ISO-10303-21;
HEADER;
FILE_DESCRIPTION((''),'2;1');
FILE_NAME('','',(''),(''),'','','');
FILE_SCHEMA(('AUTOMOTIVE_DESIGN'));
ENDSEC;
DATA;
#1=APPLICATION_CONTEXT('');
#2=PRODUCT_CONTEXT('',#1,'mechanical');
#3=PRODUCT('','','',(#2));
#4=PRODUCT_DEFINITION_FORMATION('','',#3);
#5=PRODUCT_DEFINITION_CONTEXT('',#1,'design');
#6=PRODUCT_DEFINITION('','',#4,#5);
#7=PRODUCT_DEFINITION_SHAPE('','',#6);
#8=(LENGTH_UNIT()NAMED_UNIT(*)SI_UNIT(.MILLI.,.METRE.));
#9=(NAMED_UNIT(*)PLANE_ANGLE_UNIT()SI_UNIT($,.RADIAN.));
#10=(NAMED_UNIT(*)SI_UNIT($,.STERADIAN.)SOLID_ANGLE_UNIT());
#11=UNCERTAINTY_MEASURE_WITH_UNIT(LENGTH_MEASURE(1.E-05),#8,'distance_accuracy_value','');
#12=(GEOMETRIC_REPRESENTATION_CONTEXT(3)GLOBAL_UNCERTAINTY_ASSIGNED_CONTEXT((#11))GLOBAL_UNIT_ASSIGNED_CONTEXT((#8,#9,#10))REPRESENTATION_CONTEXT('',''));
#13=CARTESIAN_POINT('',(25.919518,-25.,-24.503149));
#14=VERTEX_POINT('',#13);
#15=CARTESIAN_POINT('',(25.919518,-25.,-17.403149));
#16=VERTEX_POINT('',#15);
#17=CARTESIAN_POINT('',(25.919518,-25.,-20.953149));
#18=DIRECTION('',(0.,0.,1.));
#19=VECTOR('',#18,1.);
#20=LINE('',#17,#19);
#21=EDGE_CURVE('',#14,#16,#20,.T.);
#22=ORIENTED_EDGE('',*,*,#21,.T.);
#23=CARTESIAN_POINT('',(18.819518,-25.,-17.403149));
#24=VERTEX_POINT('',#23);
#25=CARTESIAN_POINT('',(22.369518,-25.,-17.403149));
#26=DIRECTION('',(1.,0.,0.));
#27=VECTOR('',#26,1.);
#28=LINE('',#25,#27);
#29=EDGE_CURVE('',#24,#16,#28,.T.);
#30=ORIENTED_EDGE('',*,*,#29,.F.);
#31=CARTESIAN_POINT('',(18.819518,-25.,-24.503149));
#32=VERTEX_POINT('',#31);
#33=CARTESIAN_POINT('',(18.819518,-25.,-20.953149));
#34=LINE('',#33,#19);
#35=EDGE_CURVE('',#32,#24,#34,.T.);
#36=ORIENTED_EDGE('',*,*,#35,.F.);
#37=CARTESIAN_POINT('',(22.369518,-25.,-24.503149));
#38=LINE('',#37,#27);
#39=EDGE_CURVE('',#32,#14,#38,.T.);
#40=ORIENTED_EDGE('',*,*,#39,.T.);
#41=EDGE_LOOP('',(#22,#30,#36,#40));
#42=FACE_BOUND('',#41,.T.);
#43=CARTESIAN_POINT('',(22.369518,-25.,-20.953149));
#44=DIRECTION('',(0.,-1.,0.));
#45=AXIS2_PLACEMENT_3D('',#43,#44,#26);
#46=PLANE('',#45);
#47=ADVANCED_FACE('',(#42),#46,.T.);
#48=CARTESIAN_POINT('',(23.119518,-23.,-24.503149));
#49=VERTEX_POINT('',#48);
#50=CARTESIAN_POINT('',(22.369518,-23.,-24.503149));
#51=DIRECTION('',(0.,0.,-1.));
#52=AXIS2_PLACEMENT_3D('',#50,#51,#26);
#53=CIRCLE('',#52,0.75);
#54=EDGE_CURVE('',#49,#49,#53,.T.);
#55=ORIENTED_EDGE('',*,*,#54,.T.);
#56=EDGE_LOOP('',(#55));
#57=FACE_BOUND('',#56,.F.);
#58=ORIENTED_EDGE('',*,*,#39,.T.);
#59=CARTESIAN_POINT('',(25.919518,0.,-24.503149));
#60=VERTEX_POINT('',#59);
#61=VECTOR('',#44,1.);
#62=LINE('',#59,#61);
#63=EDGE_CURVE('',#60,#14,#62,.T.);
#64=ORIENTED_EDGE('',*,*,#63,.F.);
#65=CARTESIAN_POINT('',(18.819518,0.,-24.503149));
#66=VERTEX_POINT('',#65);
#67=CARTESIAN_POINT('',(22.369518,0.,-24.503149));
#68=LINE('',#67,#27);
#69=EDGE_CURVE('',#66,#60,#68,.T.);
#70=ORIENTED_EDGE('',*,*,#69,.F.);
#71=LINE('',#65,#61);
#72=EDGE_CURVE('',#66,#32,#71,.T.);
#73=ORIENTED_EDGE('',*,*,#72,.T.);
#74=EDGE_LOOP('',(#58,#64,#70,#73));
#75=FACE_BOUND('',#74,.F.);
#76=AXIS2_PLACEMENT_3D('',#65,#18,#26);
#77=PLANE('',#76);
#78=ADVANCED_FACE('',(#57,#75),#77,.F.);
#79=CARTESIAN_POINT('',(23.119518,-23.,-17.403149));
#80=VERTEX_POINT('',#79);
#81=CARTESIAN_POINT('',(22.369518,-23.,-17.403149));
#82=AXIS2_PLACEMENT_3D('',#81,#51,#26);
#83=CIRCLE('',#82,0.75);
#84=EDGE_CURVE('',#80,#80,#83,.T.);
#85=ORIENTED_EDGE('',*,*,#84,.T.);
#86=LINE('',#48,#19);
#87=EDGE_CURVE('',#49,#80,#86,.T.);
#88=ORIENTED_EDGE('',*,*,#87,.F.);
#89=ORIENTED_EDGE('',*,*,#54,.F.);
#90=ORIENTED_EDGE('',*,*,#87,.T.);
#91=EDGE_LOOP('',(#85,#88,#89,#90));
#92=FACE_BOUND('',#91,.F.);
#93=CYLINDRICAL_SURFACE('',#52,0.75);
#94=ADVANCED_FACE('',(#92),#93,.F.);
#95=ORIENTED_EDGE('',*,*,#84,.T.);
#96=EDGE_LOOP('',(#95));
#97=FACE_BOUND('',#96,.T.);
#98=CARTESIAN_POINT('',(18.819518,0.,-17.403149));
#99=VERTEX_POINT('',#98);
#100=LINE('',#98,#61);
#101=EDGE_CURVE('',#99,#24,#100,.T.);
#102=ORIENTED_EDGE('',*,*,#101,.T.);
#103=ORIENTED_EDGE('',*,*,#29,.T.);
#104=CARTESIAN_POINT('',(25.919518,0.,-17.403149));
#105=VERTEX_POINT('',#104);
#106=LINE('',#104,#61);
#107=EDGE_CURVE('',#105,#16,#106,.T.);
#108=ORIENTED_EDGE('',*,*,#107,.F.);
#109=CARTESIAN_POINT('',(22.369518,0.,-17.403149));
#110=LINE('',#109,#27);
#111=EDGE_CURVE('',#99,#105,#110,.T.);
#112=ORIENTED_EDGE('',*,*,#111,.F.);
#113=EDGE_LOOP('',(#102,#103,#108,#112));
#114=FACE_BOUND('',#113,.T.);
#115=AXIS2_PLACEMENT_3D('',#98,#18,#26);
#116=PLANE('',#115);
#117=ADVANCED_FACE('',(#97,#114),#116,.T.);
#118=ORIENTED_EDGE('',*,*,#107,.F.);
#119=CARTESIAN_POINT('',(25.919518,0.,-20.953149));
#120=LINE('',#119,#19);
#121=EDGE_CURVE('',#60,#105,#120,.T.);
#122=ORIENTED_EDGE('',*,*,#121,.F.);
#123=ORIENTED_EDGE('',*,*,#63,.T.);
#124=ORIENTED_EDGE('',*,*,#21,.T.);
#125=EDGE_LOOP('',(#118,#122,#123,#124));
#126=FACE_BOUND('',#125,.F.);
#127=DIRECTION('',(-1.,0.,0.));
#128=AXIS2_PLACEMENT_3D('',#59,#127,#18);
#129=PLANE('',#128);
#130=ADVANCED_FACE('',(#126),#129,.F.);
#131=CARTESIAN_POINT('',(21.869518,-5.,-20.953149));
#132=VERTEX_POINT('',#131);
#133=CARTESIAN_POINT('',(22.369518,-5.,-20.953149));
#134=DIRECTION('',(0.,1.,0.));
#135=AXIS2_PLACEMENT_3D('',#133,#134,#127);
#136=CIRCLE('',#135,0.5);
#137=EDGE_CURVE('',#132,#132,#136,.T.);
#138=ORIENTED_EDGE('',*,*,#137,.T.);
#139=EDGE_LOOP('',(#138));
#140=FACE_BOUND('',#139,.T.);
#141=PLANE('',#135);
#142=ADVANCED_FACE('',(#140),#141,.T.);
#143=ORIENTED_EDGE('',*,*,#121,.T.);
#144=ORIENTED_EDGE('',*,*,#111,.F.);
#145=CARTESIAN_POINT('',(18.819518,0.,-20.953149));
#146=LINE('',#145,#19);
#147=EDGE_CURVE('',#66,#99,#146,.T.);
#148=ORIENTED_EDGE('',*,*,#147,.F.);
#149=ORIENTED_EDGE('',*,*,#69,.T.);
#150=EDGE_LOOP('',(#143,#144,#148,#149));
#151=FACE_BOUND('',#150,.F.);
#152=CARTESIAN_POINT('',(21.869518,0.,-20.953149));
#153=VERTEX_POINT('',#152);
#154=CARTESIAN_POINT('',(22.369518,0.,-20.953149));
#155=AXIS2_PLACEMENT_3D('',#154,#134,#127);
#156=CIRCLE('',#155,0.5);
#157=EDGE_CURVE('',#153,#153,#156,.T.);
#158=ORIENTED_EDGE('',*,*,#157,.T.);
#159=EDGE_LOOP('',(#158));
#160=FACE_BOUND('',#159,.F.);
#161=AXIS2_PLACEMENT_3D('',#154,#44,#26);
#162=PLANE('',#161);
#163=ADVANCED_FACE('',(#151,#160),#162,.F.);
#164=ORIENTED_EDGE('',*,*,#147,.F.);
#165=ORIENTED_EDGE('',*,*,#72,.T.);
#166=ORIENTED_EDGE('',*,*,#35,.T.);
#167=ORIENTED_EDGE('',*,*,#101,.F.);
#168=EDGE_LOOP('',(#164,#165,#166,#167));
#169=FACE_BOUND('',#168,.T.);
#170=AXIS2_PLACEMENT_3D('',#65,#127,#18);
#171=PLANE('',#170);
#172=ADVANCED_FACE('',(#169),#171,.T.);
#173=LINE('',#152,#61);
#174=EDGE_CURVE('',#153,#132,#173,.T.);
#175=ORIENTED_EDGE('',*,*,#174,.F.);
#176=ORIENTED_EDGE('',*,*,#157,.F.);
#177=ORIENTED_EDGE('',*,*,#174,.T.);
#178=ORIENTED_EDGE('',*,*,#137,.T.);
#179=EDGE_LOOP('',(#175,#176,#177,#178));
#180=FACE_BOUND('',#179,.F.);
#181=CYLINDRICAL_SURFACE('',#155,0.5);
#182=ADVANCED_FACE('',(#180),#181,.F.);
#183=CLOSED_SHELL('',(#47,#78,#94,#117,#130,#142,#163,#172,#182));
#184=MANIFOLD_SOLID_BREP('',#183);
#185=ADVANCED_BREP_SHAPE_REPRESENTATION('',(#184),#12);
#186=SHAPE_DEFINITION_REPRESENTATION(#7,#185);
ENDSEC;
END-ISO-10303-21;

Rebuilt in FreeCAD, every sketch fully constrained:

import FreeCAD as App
import Part
import Sketcher
from FreeCAD import Vector


def add_polygon(sketch, points):
    """Adds a closed chain of lines whose ends are joined by coincident constraints."""
    first, n = sketch.GeometryCount, len(points)
    for a, b in zip(points, points[1:] + points[:1]):
        sketch.addGeometry(Part.LineSegment(App.Vector(*a, 0), App.Vector(*b, 0)), False)
    for i in range(n):
        sketch.addConstraint(Sketcher.Constraint("Coincident", first + i, 2, first + (i + 1) % n, 1))

doc = App.newDocument("Part")
body = doc.addObject("PartDesign::Body", "Body")

# Sketch on XZ plane
sketch1 = body.newObject("Sketcher::SketchObject", "Sketch")
sketch1.AttachmentSupport = (doc.getObject("XZ_Plane"), [""])
sketch1.MapMode = "FlatFace"
add_polygon(sketch1, [(18.819518, -17.403149), (18.819518, -24.503149), (25.919518, -24.503149), (25.919518, -17.403149)])  # lines 0-3
sketch1.addConstraint([
    Sketcher.Constraint("Vertical", 0),
    Sketcher.Constraint("Horizontal", 1),
    Sketcher.Constraint("Vertical", 2),
    Sketcher.Constraint("Horizontal", 3),
    Sketcher.Constraint("Equal", 3, 0),
    Sketcher.Constraint("DistanceX", 1, 1, 1, 2, 7.1),
    Sketcher.Constraint("DistanceY", 0, 2, -1, 1, 24.503149),
    Sketcher.Constraint("DistanceX", -1, 1, 1, 2, 25.919518),
])
pad1 = body.newObject("PartDesign::Pad", "Pad")
pad1.Profile = sketch1
pad1.Length = 25

# Sketch on XY plane
sketch2 = body.newObject("Sketcher::SketchObject", "Sketch001")
sketch2.AttachmentSupport = (doc.getObject("XY_Plane"), [""])
sketch2.MapMode = "FlatFace"
sketch2.AttachmentOffset = App.Placement(Vector(0, 0, -24.503149), App.Rotation())
sketch2.addGeometry(Part.Circle(Vector(22.369518, -23, 0), Vector(0, 0, 1), 0.75), False)
sketch2.addConstraint([
    Sketcher.Constraint("Diameter", 0, 1.5),
    Sketcher.Constraint("DistanceY", 0, 3, -1, 1, 23.0),
    Sketcher.Constraint("DistanceX", -1, 1, 0, 3, 22.369518),
])
pocket1 = body.newObject("PartDesign::Pocket", "Pocket")
pocket1.Profile = sketch2
pocket1.Length = 25
pocket1.Reversed = True

# Sketch on XZ plane
sketch3 = body.newObject("Sketcher::SketchObject", "Sketch002")
sketch3.AttachmentSupport = (doc.getObject("XZ_Plane"), [""])
sketch3.MapMode = "FlatFace"
sketch3.addGeometry(Part.Circle(Vector(22.369518, -20.953149, 0), Vector(0, 0, 1), 0.5), False)
sketch3.addConstraint([
    Sketcher.Constraint("Diameter", 0, 1.0),
    Sketcher.Constraint("DistanceY", 0, 3, -1, 1, 20.953149),
    Sketcher.Constraint("DistanceX", -1, 1, 0, 3, 22.369518),
])
pocket2 = body.newObject("PartDesign::Pocket", "Pocket001")
pocket2.Profile = sketch3
pocket2.Length = 5
pocket2.Reversed = True

doc.recompute()
